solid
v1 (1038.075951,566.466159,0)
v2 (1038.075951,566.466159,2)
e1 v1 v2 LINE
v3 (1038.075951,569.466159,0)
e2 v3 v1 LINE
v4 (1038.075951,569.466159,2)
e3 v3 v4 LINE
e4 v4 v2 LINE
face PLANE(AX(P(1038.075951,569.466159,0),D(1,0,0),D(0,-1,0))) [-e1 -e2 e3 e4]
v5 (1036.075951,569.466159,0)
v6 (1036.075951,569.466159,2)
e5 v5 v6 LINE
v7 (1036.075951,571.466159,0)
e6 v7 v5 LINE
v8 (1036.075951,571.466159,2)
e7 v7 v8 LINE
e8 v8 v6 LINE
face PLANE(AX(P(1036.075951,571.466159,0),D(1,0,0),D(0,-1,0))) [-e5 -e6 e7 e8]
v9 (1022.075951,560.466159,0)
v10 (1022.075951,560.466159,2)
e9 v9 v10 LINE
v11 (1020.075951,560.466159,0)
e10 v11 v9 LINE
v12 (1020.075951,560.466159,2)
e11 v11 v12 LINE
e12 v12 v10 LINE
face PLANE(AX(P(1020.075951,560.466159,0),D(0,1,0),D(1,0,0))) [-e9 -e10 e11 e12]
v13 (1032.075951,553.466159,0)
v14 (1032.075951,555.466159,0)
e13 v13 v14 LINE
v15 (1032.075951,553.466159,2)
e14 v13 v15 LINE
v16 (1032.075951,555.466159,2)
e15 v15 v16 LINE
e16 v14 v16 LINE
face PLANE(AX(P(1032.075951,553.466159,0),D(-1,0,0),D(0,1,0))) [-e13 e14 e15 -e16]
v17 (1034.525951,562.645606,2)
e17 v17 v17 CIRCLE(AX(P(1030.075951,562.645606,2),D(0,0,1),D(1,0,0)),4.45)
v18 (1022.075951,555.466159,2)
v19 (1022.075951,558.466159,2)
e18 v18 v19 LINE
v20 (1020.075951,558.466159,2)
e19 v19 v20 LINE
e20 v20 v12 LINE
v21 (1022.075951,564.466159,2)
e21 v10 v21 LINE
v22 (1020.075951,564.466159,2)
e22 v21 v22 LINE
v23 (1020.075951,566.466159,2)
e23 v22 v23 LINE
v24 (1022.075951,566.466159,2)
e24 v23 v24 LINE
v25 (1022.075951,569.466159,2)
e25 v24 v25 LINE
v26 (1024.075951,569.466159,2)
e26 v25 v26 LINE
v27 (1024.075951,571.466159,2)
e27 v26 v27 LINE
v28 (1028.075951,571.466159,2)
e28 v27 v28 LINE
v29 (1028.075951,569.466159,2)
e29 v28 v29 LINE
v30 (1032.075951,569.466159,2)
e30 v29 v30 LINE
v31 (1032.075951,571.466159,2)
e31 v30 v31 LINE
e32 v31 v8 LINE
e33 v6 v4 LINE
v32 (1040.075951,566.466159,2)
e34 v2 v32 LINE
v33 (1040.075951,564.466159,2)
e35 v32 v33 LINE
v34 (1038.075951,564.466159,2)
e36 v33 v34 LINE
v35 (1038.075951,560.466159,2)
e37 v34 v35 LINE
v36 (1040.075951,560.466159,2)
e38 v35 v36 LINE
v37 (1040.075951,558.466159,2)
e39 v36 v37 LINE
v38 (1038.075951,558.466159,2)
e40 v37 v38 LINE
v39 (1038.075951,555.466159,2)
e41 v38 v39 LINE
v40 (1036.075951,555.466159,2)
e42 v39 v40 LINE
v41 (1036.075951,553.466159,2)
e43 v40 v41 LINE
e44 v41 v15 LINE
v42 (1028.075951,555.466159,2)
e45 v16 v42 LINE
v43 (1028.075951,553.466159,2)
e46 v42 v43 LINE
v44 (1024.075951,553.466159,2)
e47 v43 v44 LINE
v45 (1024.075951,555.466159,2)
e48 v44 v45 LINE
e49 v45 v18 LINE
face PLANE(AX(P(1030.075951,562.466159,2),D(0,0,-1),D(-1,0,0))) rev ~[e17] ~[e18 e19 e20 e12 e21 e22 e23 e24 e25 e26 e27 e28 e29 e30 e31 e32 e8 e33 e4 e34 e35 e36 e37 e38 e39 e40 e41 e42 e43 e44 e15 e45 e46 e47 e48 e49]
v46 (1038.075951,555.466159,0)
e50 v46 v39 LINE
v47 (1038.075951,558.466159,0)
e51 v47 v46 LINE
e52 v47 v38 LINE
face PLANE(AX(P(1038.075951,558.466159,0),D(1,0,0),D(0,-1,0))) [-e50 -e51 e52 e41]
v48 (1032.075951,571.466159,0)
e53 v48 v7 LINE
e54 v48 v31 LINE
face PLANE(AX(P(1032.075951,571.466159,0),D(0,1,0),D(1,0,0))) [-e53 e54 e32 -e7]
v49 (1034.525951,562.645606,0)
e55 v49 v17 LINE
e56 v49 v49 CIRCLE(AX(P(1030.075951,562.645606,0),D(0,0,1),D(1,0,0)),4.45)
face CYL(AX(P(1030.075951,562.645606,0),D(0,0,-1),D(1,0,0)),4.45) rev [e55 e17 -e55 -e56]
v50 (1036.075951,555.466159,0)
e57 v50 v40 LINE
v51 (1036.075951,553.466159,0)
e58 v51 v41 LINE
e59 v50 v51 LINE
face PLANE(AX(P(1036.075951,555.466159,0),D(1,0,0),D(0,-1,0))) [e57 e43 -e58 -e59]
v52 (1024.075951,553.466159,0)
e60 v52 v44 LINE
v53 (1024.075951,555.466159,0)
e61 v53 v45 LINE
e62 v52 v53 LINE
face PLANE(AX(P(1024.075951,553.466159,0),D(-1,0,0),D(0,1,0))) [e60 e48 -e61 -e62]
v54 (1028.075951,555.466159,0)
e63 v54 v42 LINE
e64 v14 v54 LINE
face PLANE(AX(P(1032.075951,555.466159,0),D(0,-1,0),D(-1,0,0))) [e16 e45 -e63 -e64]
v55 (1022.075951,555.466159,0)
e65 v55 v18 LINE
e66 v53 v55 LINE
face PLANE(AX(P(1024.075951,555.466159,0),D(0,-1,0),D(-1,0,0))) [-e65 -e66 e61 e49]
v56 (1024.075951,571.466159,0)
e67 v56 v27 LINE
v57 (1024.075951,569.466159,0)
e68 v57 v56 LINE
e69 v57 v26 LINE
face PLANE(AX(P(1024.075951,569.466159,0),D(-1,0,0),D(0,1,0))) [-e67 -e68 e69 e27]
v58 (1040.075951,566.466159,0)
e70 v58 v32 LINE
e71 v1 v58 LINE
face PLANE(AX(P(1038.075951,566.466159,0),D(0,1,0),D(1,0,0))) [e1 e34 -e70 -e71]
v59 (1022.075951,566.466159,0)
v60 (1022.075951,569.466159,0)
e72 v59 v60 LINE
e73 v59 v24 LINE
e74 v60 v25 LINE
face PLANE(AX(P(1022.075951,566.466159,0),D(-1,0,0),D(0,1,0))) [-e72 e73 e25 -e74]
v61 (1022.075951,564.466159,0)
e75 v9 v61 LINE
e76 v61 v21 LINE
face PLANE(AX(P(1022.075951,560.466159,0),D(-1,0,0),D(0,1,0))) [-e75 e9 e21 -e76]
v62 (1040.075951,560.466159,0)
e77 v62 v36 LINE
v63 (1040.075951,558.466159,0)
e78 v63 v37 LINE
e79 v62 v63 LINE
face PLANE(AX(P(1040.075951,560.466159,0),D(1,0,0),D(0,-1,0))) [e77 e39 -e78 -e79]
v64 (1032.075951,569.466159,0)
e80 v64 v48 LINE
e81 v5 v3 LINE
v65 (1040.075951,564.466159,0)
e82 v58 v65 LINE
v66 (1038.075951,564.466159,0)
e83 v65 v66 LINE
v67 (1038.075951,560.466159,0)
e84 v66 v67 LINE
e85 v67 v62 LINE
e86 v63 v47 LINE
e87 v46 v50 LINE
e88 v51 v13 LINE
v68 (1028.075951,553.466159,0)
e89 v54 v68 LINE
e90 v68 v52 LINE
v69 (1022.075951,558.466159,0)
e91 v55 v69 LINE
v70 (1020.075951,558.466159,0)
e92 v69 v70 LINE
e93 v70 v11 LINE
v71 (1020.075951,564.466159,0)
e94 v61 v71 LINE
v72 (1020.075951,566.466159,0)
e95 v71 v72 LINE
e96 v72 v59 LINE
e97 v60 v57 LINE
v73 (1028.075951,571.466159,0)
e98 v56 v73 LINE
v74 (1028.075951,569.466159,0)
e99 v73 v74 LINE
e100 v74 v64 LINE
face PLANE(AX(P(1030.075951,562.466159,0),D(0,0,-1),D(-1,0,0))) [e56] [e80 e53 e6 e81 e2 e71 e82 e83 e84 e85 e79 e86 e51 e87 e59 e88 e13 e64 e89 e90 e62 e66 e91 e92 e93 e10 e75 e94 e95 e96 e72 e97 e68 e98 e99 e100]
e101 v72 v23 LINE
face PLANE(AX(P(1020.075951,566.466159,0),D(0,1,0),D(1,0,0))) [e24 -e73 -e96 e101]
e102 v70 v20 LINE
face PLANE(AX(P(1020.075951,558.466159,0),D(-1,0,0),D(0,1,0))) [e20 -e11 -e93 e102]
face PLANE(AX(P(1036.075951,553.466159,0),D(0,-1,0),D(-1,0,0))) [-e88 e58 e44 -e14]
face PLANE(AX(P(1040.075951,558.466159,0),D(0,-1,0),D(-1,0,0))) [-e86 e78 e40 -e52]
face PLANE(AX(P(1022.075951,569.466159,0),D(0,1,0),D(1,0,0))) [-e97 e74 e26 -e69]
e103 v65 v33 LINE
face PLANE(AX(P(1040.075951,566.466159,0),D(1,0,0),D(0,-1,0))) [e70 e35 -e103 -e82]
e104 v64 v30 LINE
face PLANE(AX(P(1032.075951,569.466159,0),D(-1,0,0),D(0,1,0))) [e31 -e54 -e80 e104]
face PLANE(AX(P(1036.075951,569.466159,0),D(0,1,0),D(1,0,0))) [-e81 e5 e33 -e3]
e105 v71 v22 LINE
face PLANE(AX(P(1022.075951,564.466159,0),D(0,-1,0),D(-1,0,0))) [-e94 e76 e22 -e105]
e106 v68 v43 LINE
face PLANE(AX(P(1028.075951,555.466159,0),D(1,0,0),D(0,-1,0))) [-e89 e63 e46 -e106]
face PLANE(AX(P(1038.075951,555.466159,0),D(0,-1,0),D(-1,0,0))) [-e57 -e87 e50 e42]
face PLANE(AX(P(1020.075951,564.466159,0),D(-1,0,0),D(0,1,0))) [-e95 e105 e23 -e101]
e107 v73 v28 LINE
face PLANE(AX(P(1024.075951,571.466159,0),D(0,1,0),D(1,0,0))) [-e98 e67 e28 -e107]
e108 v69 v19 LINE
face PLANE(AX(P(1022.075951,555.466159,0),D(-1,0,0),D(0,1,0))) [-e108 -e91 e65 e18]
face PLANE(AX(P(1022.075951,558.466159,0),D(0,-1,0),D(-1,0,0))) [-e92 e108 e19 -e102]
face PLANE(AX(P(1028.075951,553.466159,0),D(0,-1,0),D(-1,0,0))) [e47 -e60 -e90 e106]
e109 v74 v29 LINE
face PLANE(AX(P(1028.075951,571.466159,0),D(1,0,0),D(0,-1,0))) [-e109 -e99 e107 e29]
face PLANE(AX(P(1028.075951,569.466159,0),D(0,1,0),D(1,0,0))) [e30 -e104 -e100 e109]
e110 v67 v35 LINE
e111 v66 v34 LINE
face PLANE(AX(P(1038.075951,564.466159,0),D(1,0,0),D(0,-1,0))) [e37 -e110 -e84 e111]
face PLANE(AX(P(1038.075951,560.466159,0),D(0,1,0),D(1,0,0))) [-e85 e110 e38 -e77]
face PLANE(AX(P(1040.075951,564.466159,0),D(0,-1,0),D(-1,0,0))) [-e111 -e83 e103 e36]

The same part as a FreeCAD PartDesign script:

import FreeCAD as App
import Part
import Sketcher
Q = App.Units.Quantity


def add_polygon(sketch, points):
    """Adds a closed chain of lines whose ends are joined by coincident constraints."""
    first, n = sketch.GeometryCount, len(points)
    for a, b in zip(points, points[1:] + points[:1]):
        sketch.addGeometry(Part.LineSegment(App.Vector(*a, 0), App.Vector(*b, 0)), False)
    for i in range(n):
        sketch.addConstraint(Sketcher.Constraint("Coincident", first + i, 2, first + (i + 1) % n, 1))

doc = App.newDocument("Part")
body = doc.addObject("PartDesign::Body", "Body")

# Sketch on XY plane
sketch1 = body.newObject("Sketcher::SketchObject", "Sketch")
sketch1.AttachmentSupport = (doc.getObject("XY_Plane"), [""])
sketch1.MapMode = "FlatFace"
add_polygon(sketch1, [(1022.1, 569.5), (1022.1, 566.5), (1020.1, 566.5), (1020.1, 564.5), (1022.1, 564.5), (1022.1, 560.5), (1020.1, 560.5), (1020.1, 558.5), (1022.1, 558.5), (1022.1, 555.5), (1024.1, 555.5), (1024.1, 553.5), (1028.1, 553.5), (1028.1, 555.5), (1032.1, 555.5), (1032.1, 553.5), (1036.1, 553.5), (1036.1, 555.5), (1038.1, 555.5), (1038.1, 558.5), (1040.1, 558.5), (1040.1, 560.5), (1038.1, 560.5), (1038.1, 564.5), (1040.1, 564.5), (1040.1, 566.5), (1038.1, 566.5), (1038.1, 569.5), (1036.1, 569.5), (1036.1, 571.5), (1032.1, 571.5), (1032.1, 569.5), (1028.1, 569.5), (1028.1, 571.5), (1024.1, 571.5), (1024.1, 569.5)])  # lines 0-35
sketch1.addGeometry(Part.Circle(App.Vector(1030.1, 562.6, 0), App.Vector(0, 0, 1), 4.5), False)  # 36
sketch1.addConstraint(Sketcher.Constraint("Vertical", 0))
sketch1.addConstraint(Sketcher.Constraint("Horizontal", 1))
sketch1.addConstraint(Sketcher.Constraint("Vertical", 2))
sketch1.addConstraint(Sketcher.Constraint("Horizontal", 3))
sketch1.addConstraint(Sketcher.Constraint("Vertical", 4))
sketch1.addConstraint(Sketcher.Constraint("Horizontal", 5))
sketch1.addConstraint(Sketcher.Constraint("Vertical", 6))
sketch1.addConstraint(Sketcher.Constraint("Horizontal", 7))
sketch1.addConstraint(Sketcher.Constraint("Vertical", 8))
sketch1.addConstraint(Sketcher.Constraint("Horizontal", 9))
sketch1.addConstraint(Sketcher.Constraint("Vertical", 10))
sketch1.addConstraint(Sketcher.Constraint("Horizontal", 11))
sketch1.addConstraint(Sketcher.Constraint("Vertical", 12))
sketch1.addConstraint(Sketcher.Constraint("Horizontal", 13))
sketch1.addConstraint(Sketcher.Constraint("Vertical", 14))
sketch1.addConstraint(Sketcher.Constraint("Horizontal", 15))
sketch1.addConstraint(Sketcher.Constraint("Vertical", 16))
sketch1.addConstraint(Sketcher.Constraint("Horizontal", 17))
sketch1.addConstraint(Sketcher.Constraint("Vertical", 18))
sketch1.addConstraint(Sketcher.Constraint("Horizontal", 19))
sketch1.addConstraint(Sketcher.Constraint("Vertical", 20))
sketch1.addConstraint(Sketcher.Constraint("Horizontal", 21))
sketch1.addConstraint(Sketcher.Constraint("Vertical", 22))
sketch1.addConstraint(Sketcher.Constraint("Horizontal", 23))
sketch1.addConstraint(Sketcher.Constraint("Vertical", 24))
sketch1.addConstraint(Sketcher.Constraint("Horizontal", 25))
sketch1.addConstraint(Sketcher.Constraint("Vertical", 26))
sketch1.addConstraint(Sketcher.Constraint("Horizontal", 27))
sketch1.addConstraint(Sketcher.Constraint("Vertical", 28))
sketch1.addConstraint(Sketcher.Constraint("Horizontal", 29))
sketch1.addConstraint(Sketcher.Constraint("Vertical", 30))
sketch1.addConstraint(Sketcher.Constraint("Horizontal", 31))
sketch1.addConstraint(Sketcher.Constraint("Vertical", 32))
sketch1.addConstraint(Sketcher.Constraint("Horizontal", 33))
sketch1.addConstraint(Sketcher.Constraint("Vertical", 34))
sketch1.addConstraint(Sketcher.Constraint("Horizontal", 35))
sketch1.addConstraint(Sketcher.Constraint("Horizontal", 9, 2, 12, 2))
sketch1.addConstraint(Sketcher.Constraint("Horizontal", 11, 2, 14, 2))
sketch1.addConstraint(Sketcher.Constraint("Horizontal", 13, 2, 16, 2))
sketch1.addConstraint(Sketcher.Constraint("Horizontal", 7, 2, 18, 2))
sketch1.addConstraint(Sketcher.Constraint("Horizontal", 5, 2, 20, 2))
sketch1.addConstraint(Sketcher.Constraint("Horizontal", 3, 2, 22, 2))
sketch1.addConstraint(Sketcher.Constraint("Horizontal", 1, 2, 24, 2))
sketch1.addConstraint(Sketcher.Constraint("Horizontal", 27, 2, 30, 2))
sketch1.addConstraint(Sketcher.Constraint("Horizontal", 29, 2, 32, 2))
sketch1.addConstraint(Sketcher.Constraint("Horizontal", 31, 2, 34, 2))
sketch1.addConstraint(Sketcher.Constraint("Vertical", 0, 2, 3, 2))
sketch1.addConstraint(Sketcher.Constraint("Vertical", 2, 2, 5, 2))
sketch1.addConstraint(Sketcher.Constraint("Vertical", 4, 2, 7, 2))
sketch1.addConstraint(Sketcher.Constraint("Vertical", 18, 2, 21, 2))
sketch1.addConstraint(Sketcher.Constraint("Vertical", 20, 2, 23, 2))
sketch1.addConstraint(Sketcher.Constraint("Vertical", 22, 2, 25, 2))
sketch1.addConstraint(Sketcher.Constraint("Vertical", 16, 2, 27, 2))
sketch1.addConstraint(Sketcher.Constraint("Vertical", 14, 2, 29, 2))
sketch1.addConstraint(Sketcher.Constraint("Vertical", 12, 2, 31, 2))
sketch1.addConstraint(Sketcher.Constraint("Vertical", 10, 2, 33, 2))
sketch1.addConstraint(Sketcher.Constraint("Equal", 7, 9))
sketch1.addConstraint(Sketcher.Constraint("Equal", 11, 13))
sketch1.addConstraint(Sketcher.Constraint("Equal", 13, 15))
sketch1.addConstraint(Sketcher.Constraint("Equal", 9, 17))
sketch1.addConstraint(Sketcher.Constraint("Equal", 17, 19))
sketch1.addConstraint(Sketcher.Constraint("Equal", 35, 2))
sketch1.addConstraint(Sketcher.Constraint("Equal", 33, 4))
sketch1.addConstraint(Sketcher.Constraint("Equal", 2, 6))
sketch1.addConstraint(Sketcher.Constraint("Equal", 0, 8))
sketch1.addConstraint(Sketcher.Constraint("Equal", 6, 10))
sketch1.addConstraint(Sketcher.Constraint("Equal", 24, 28))
sketch1.addConstraint(Sketcher.Constraint("Diameter", 36, Q("8.9 mm")))
sketch1.addConstraint(Sketcher.Constraint("DistanceX", 1, 2, 1, 1, Q("2 mm")))
sketch1.addConstraint(Sketcher.Constraint("DistanceX", 11, 1, 11, 2, Q("4 mm")))
sketch1.addConstraint(Sketcher.Constraint("DistanceY", 0, 2, 0, 1, Q("3 mm")))
sketch1.addConstraint(Sketcher.Constraint("DistanceX", 0, 2, 36, 3, Q("8 mm")))
sketch1.addConstraint(Sketcher.Constraint("DistanceX", -1, 1, 36, 3, Q("1030.075951 mm")))
sketch1.addConstraint(Sketcher.Constraint("DistanceY", -1, 1, 0, 2, Q("566.466159 mm")))
sketch1.addConstraint(Sketcher.Constraint("DistanceY", -1, 1, 36, 3, Q("562.645606 mm")))
pad1 = body.newObject("PartDesign::Pad", "Pad")
pad1.Profile = sketch1
pad1.Length = 2

doc.recompute()
